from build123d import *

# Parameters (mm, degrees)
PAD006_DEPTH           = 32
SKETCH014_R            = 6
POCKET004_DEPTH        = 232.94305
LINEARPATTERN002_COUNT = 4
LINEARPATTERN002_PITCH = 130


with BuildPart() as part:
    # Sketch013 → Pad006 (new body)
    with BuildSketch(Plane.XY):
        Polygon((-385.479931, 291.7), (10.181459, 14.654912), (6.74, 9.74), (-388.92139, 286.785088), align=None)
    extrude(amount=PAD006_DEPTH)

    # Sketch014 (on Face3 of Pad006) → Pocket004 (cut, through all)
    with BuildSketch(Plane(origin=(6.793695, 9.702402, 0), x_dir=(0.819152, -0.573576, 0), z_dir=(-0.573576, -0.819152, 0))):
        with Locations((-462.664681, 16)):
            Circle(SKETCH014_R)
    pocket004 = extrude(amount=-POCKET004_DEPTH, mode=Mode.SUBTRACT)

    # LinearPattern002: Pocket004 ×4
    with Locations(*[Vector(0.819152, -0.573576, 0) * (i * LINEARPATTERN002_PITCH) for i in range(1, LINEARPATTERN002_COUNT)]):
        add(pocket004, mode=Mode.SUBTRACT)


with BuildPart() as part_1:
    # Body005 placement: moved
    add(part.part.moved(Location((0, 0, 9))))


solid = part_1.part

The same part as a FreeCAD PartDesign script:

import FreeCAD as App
import Part
import Sketcher
Q = App.Units.Quantity

doc = App.newDocument("Part")
body = doc.addObject("PartDesign::Body", "Body")

sketch1 = doc.addObject("Sketcher::SketchObject", "Sketch")
body.addObject(sketch1)
sketch1.AttachmentSupport = (doc.XY_Plane, [""])
sketch1.MapMode = "FlatFace"
sketch1.addGeometry([
    Part.LineSegment(App.Vector(10, 15, 0), App.Vector(-385, 292, 0)),
    Part.LineSegment(App.Vector(-385, 292, 0), App.Vector(-389, 287, 0)),
    Part.LineSegment(App.Vector(-389, 287, 0), App.Vector(7, 10, 0)),
    Part.LineSegment(App.Vector(7, 10, 0), App.Vector(10, 15, 0)),
], False)
sketch1.addConstraint([
    Sketcher.Constraint("Coincident", 0, 2, 1, 1),
    Sketcher.Constraint("Coincident", 1, 2, 2, 1),
    Sketcher.Constraint("Coincident", 2, 2, 3, 1),
    Sketcher.Constraint("Coincident", 3, 2, 0, 1),
    Sketcher.Constraint("Perpendicular", 0, 1),
    Sketcher.Constraint("Perpendicular", 1, 2),
    Sketcher.Constraint("Perpendicular", 2, 3),
    Sketcher.Constraint("Angle", 0, Q("145 deg")),
    Sketcher.Constraint("Distance", 1, 6.0),
    Sketcher.Constraint("DistanceY", -1, 1, 0, 2, 291.7),
    Sketcher.Constraint("DistanceX", -1, 1, 2, 2, 6.74),
    Sketcher.Constraint("DistanceY", -1, 1, 2, 2, 9.74),
])
pad1 = doc.addObject("PartDesign::Pad", "Pad")
body.addObject(pad1)
pad1.Profile = sketch1
pad1.Length = 32

sketch2 = doc.addObject("Sketcher::SketchObject", "Sketch001")
body.addObject(sketch2)
sketch2.Placement = App.Placement(App.Vector(6.793695, 9.702402, 0), App.Rotation(App.Vector(0.819152235, -0.573576164, 0), App.Vector(0, 0, 1), App.Vector(-0.573576164, -0.819152235, 0), "ZXY"))
sketch2.addGeometry(Part.Circle(App.Vector(-463, 16, 0), App.Vector(0, 0, 1), 6), False)
sketch2.addConstraint([
    Sketcher.Constraint("Diameter", 0, 12.0),
    Sketcher.Constraint("DistanceY", -1, 1, 0, 3, 16.0),
    Sketcher.Constraint("DistanceX", 0, 3, -1, 1, 462.664681),
])
pocket1 = doc.addObject("PartDesign::Pocket", "Pocket")
body.addObject(pocket1)
pocket1.Profile = sketch2
pocket1.Type = "ThroughAll"
doc.recompute()

datumline = doc.addObject("PartDesign::Line", "DatumLine")
body.addObject(datumline)
datumline.Placement = App.Placement(App.Vector(0, 0, 0), App.Rotation(App.Vector(0, 0, 1), App.Vector(0.819152235, -0.573576164, 0)))
linearpattern = doc.addObject("PartDesign::LinearPattern", "LinearPattern")
body.addObject(linearpattern)
linearpattern.Originals = [pocket1]
linearpattern.Direction = (datumline, [""])
linearpattern.Mode = "offset"
linearpattern.Offset = 129.999963
linearpattern.Occurrences = 4
body.Tip = linearpattern
body2 = doc.addObject("PartDesign::Body", "Body001")
doc.recompute()

body.Placement = App.Placement(App.Vector(0, 0, 9), App.Rotation(App.Vector(0, 0, 1), 0))
boolean = doc.addObject("PartDesign::Boolean", "Boolean")
body2.addObject(boolean)
boolean.Type = "Fuse"
boolean.addObjects([body])

doc.recompute()
